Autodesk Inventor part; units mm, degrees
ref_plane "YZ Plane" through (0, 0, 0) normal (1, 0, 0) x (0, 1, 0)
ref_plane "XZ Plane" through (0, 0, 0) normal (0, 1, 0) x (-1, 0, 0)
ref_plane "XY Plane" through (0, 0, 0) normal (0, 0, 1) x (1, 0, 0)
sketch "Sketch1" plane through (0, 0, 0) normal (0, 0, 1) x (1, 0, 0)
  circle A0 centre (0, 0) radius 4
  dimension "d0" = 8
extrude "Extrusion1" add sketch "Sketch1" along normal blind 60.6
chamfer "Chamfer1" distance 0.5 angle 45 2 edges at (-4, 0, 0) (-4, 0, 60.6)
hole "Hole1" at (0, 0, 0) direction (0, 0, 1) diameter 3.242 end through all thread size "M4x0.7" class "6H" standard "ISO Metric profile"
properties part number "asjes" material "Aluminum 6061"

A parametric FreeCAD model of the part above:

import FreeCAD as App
import Part
import Sketcher

V = App.Vector


def edges_at(feature, points):
    """Names of the edges that pass closest to the given points."""
    edges = feature.Shape.Edges
    near = lambda p: min(range(len(edges)), key=lambda i: edges[i].distToShape(Part.Vertex(*p))[0])
    return sorted({f"Edge{near(p) + 1}" for p in points})

doc = App.newDocument("Part")
body = doc.addObject("PartDesign::Body", "Body")

# Sketch on XY plane
sketch1 = body.newObject("Sketcher::SketchObject", "Sketch")
sketch1.AttachmentSupport = (doc.getObject("XY_Plane"), [""])
sketch1.MapMode = "FlatFace"
sketch1.addGeometry(Part.Circle(V(0, 0, 0), V(0, 0, 1), 4), False)
sketch1.addConstraint([
    Sketcher.Constraint("Coincident", 0, 3, -1, 1),
    Sketcher.Constraint("Diameter", 0, 8.0),
])
pad1 = body.newObject("PartDesign::Pad", "Pad")
pad1.Profile = sketch1
pad1.Length = 60.6
doc.recompute()

chamfer = body.newObject("PartDesign::Chamfer", "Chamfer")
chamfer.Base = (pad1, edges_at(pad1, [(-4, 0, 0), (-4, 0, 60.6)]))
chamfer.Size = 0.5

# Sketch on XY plane
sketch2 = body.newObject("Sketcher::SketchObject", "Sketch001")
sketch2.AttachmentSupport = (doc.getObject("XY_Plane"), [""])
sketch2.MapMode = "FlatFace"
sketch2.addGeometry(Part.Circle(V(0, 0, 0), V(0, 0, 1), 1.621), False)
sketch2.addConstraint([
    Sketcher.Constraint("Coincident", 0, 3, -1, 1),
    Sketcher.Constraint("Diameter", 0, 3.242),
])
doc.recompute()
hole = body.newObject("PartDesign::Hole", "Hole")
hole.Profile = sketch2
hole.ThreadType = "None"
hole.Diameter = 3.242
hole.DepthType = "ThroughAll"
hole.Reversed = True

doc.recompute()
